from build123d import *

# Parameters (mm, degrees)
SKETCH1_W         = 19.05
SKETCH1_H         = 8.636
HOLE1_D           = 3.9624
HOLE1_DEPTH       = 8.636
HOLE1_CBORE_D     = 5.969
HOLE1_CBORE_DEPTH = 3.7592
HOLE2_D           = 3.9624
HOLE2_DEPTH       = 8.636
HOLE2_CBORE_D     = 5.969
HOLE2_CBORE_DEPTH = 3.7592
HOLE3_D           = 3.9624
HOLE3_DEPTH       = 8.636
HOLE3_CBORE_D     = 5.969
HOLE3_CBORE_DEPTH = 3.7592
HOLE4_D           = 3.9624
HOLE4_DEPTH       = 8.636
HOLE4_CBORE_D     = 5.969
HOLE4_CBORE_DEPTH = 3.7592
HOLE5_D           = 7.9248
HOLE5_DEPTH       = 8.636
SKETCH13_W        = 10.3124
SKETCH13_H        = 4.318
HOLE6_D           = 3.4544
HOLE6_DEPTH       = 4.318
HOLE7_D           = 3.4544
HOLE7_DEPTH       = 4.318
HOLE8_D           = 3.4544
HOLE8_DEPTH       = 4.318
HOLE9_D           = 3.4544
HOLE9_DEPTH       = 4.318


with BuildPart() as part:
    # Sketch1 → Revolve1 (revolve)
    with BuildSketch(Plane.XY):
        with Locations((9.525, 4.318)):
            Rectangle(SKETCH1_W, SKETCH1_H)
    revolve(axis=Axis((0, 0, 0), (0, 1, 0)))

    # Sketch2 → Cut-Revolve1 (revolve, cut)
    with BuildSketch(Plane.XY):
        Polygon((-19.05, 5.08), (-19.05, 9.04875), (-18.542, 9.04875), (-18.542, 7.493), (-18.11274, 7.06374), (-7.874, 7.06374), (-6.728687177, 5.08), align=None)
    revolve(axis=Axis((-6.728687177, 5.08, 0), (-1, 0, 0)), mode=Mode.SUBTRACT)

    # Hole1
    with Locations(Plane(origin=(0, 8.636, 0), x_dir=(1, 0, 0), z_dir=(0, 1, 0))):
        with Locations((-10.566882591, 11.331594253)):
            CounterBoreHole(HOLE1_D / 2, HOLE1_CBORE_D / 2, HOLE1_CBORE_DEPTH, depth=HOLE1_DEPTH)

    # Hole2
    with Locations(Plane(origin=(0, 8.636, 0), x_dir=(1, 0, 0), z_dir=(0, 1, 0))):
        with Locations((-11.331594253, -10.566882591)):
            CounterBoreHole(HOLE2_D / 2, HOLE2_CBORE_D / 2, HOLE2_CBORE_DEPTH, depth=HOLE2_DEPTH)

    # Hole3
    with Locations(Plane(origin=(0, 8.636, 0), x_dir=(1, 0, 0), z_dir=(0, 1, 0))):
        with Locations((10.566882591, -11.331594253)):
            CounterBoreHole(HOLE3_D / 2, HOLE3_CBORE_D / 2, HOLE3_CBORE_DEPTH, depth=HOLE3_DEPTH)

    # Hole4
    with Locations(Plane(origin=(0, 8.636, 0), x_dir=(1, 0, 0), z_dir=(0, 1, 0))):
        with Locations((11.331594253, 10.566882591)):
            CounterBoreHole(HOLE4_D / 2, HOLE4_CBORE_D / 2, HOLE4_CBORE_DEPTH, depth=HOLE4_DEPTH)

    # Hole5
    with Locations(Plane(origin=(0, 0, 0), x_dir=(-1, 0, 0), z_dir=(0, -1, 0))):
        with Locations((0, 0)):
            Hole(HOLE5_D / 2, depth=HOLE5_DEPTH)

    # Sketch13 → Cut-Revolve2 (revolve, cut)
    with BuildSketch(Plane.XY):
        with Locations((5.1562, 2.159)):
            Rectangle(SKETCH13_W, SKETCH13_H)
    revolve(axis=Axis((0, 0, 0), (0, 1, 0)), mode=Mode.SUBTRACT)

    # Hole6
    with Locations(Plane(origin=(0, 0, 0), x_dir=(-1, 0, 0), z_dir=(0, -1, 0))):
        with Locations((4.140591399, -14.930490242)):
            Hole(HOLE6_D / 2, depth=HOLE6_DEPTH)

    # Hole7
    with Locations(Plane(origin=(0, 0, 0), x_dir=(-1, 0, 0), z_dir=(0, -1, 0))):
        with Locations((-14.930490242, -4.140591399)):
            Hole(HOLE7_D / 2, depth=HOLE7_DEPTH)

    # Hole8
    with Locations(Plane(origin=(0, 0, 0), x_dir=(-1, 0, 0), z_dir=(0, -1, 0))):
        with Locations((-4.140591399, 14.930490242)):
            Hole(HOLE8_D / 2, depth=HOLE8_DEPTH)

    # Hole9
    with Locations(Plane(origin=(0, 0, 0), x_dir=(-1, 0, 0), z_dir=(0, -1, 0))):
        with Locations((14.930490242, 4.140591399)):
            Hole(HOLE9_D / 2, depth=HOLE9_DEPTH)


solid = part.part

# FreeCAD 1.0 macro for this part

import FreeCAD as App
import Part
import Sketcher
from FreeCAD import Vector
Q = App.Units.Quantity

doc = App.newDocument("Part")
body = doc.addObject("PartDesign::Body", "Body")

# Sketch on XY plane
sketch1 = body.newObject("Sketcher::SketchObject", "Sketch")
sketch1.AttachmentSupport = (doc.getObject("XY_Plane"), [""])
sketch1.MapMode = "FlatFace"
sketch1.addGeometry([
    Part.LineSegment(Vector(0, 9, 0), Vector(0, 0, 0)),
    Part.LineSegment(Vector(0, 0, 0), Vector(19, 0, 0)),
    Part.LineSegment(Vector(19, 0, 0), Vector(19, 9, 0)),
    Part.LineSegment(Vector(19, 9, 0), Vector(0, 9, 0)),
], False)
sketch1.addConstraint([
    Sketcher.Constraint("Coincident", 0, 2, 1, 1),
    Sketcher.Constraint("Coincident", 1, 2, 2, 1),
    Sketcher.Constraint("Coincident", 2, 2, 3, 1),
    Sketcher.Constraint("Coincident", 3, 2, 0, 1),
    Sketcher.Constraint("Vertical", 0),
    Sketcher.Constraint("Horizontal", 1),
    Sketcher.Constraint("Vertical", 2),
    Sketcher.Constraint("Horizontal", 3),
    Sketcher.Constraint("Coincident", 0, 2, -1, 1),
    Sketcher.Constraint("DistanceX", 1, 1, 1, 2, Q("0.75 in")),
    Sketcher.Constraint("DistanceY", 0, 2, 0, 1, Q("0.34 in")),
])
revolution = body.newObject("PartDesign::Revolution", "Revolution")
revolution.Profile = sketch1
revolution.ReferenceAxis = (sketch1, ["V_Axis"])
revolution.Angle = 360

# Sketch on XY plane
sketch2 = body.newObject("Sketcher::SketchObject", "Sketch001")
sketch2.AttachmentSupport = (doc.getObject("XY_Plane"), [""])
sketch2.MapMode = "FlatFace"
sketch2.addGeometry([
    Part.LineSegment(Vector(-19.1, 9, 0), Vector(-19.1, 5.1, 0)),  # 0
    Part.LineSegment(Vector(-19.1, 5.1, 0), Vector(-6.7, 5.1, 0)),  # 1
    Part.LineSegment(Vector(-6.7, 5.1, 0), Vector(-7.9, 7.1, 0)),  # 2
    Part.LineSegment(Vector(-7.9, 7.1, 0), Vector(-18.1, 7.1, 0)),  # 3
    Part.LineSegment(Vector(-18.1, 7.1, 0), Vector(-18.5, 7.5, 0)),  # 4
    Part.LineSegment(Vector(-18.5, 7.5, 0), Vector(-18.5, 9, 0)),  # 5
    Part.LineSegment(Vector(-18.5, 9, 0), Vector(-19.1, 9, 0)),  # 6
], False)
sketch2.addGeometry(Part.LineSegment(Vector(-6.7, 5.1, 0), Vector(-19.1, 5.1, 0)), True)  # axis
sketch2.addConstraint([
    Sketcher.Constraint("Coincident", 0, 2, 1, 1),
    Sketcher.Constraint("Coincident", 1, 2, 2, 1),
    Sketcher.Constraint("Coincident", 2, 2, 3, 1),
    Sketcher.Constraint("Coincident", 3, 2, 4, 1),
    Sketcher.Constraint("Coincident", 4, 2, 5, 1),
    Sketcher.Constraint("Coincident", 5, 2, 6, 1),
    Sketcher.Constraint("Coincident", 6, 2, 0, 1),
    Sketcher.Constraint("Vertical", 0),
    Sketcher.Constraint("Horizontal", 1),
    Sketcher.Constraint("Horizontal", 3),
    Sketcher.Constraint("Vertical", 5),
    Sketcher.Constraint("Horizontal", 6),
    Sketcher.Constraint("Horizontal", 7),
    Sketcher.Constraint("Coincident", 7, 1, 1, 2),
    Sketcher.Constraint("Vertical", 6, 2, 7, 2),
    Sketcher.Constraint("Angle", 2, Q("120 deg")),
    Sketcher.Constraint("Angle", 4, Q("135 deg")),
    Sketcher.Constraint("DistanceX", 6, 2, 6, 1, Q("0.02 in")),
    Sketcher.Constraint("DistanceY", -1, 1, 0, 2, Q("0.2 in")),
    Sketcher.Constraint("DistanceY", 0, 2, 0, 1, Q("0.15625 in")),
    Sketcher.Constraint("DistanceX", 0, 2, -1, 1, Q("0.75 in")),
    Sketcher.Constraint("DistanceX", 2, 2, -1, 1, Q("0.31 in")),
    Sketcher.Constraint("DistanceX", 3, 2, 3, 1, Q("0.4031 in")),
    Sketcher.Constraint("DistanceY", -1, 1, 4, 2, Q("0.295 in")),
])
groove = body.newObject("PartDesign::Groove", "Groove")
groove.Profile = sketch2
groove.ReferenceAxis = (sketch2, ["Axis0"])
groove.Angle = 360

# Sketch on XZ plane
sketch3 = body.newObject("Sketcher::SketchObject", "Sketch002")
sketch3.AttachmentSupport = (doc.getObject("XZ_Plane"), [""])
sketch3.MapMode = "FlatFace"
sketch3.AttachmentOffset = App.Placement(Vector(0, 0, -0.34 * 25.4), App.Rotation())
sketch3.addGeometry(Part.Circle(Vector(-10.6, -11.3, 0), Vector(0, 0, 1), 2), False)
sketch3.addConstraint([
    Sketcher.Constraint("Diameter", 0, Q("0.156 in")),
    Sketcher.Constraint("DistanceX", 0, 3, -1, 1, Q("10.566883 mm")),
    Sketcher.Constraint("DistanceY", 0, 3, -1, 1, Q("11.331594 mm")),
])
doc.recompute()
hole = body.newObject("PartDesign::Hole", "Hole")
hole.Profile = sketch3
hole.ThreadType = "None"
hole.Diameter = Q("0.156 in")
hole.DepthType = "Dimension"
hole.Depth = Q("0.34 in")
hole.DrillPoint = "Flat"
hole.HoleCutType = "Counterbore"
hole.HoleCutDiameter = Q("0.235 in")
hole.HoleCutDepth = Q("0.148 in")
hole.Reversed = True

# Sketch on XZ plane
sketch4 = body.newObject("Sketcher::SketchObject", "Sketch003")
sketch4.AttachmentSupport = (doc.getObject("XZ_Plane"), [""])
sketch4.MapMode = "FlatFace"
sketch4.AttachmentOffset = App.Placement(Vector(0, 0, -0.34 * 25.4), App.Rotation())
sketch4.addGeometry(Part.Circle(Vector(-11.3, 10.6, 0), Vector(0, 0, 1), 2), False)
sketch4.addConstraint([
    Sketcher.Constraint("Diameter", 0, Q("0.156 in")),
    Sketcher.Constraint("DistanceX", 0, 3, -1, 1, Q("11.331594 mm")),
    Sketcher.Constraint("DistanceY", -1, 1, 0, 3, Q("10.566883 mm")),
])
doc.recompute()
hole2 = body.newObject("PartDesign::Hole", "Hole001")
hole2.Profile = sketch4
hole2.ThreadType = "None"
hole2.Diameter = Q("0.156 in")
hole2.DepthType = "Dimension"
hole2.Depth = Q("0.34 in")
hole2.DrillPoint = "Flat"
hole2.HoleCutType = "Counterbore"
hole2.HoleCutDiameter = Q("0.235 in")
hole2.HoleCutDepth = Q("0.148 in")
hole2.Reversed = True

# Sketch on XZ plane
sketch5 = body.newObject("Sketcher::SketchObject", "Sketch004")
sketch5.AttachmentSupport = (doc.getObject("XZ_Plane"), [""])
sketch5.MapMode = "FlatFace"
sketch5.AttachmentOffset = App.Placement(Vector(0, 0, -0.34 * 25.4), App.Rotation())
sketch5.addGeometry(Part.Circle(Vector(10.6, 11.3, 0), Vector(0, 0, 1), 2), False)
sketch5.addConstraint([
    Sketcher.Constraint("Diameter", 0, Q("0.156 in")),
    Sketcher.Constraint("DistanceX", -1, 1, 0, 3, Q("10.566883 mm")),
    Sketcher.Constraint("DistanceY", -1, 1, 0, 3, Q("11.331594 mm")),
])
doc.recompute()
hole3 = body.newObject("PartDesign::Hole", "Hole002")
hole3.Profile = sketch5
hole3.ThreadType = "None"
hole3.Diameter = Q("0.156 in")
hole3.DepthType = "Dimension"
hole3.Depth = Q("0.34 in")
hole3.DrillPoint = "Flat"
hole3.HoleCutType = "Counterbore"
hole3.HoleCutDiameter = Q("0.235 in")
hole3.HoleCutDepth = Q("0.148 in")
hole3.Reversed = True

# Sketch on XZ plane
sketch6 = body.newObject("Sketcher::SketchObject", "Sketch005")
sketch6.AttachmentSupport = (doc.getObject("XZ_Plane"), [""])
sketch6.MapMode = "FlatFace"
sketch6.AttachmentOffset = App.Placement(Vector(0, 0, -0.34 * 25.4), App.Rotation())
sketch6.addGeometry(Part.Circle(Vector(11.3, -10.6, 0), Vector(0, 0, 1), 2), False)
sketch6.addConstraint([
    Sketcher.Constraint("Diameter", 0, Q("0.156 in")),
    Sketcher.Constraint("DistanceX", -1, 1, 0, 3, Q("11.331594 mm")),
    Sketcher.Constraint("DistanceY", 0, 3, -1, 1, Q("10.566883 mm")),
])
doc.recompute()
hole4 = body.newObject("PartDesign::Hole", "Hole003")
hole4.Profile = sketch6
hole4.ThreadType = "None"
hole4.Diameter = Q("0.156 in")
hole4.DepthType = "Dimension"
hole4.Depth = Q("0.34 in")
hole4.DrillPoint = "Flat"
hole4.HoleCutType = "Counterbore"
hole4.HoleCutDiameter = Q("0.235 in")
hole4.HoleCutDepth = Q("0.148 in")
hole4.Reversed = True

# Sketch on XZ plane
sketch7 = body.newObject("Sketcher::SketchObject", "Sketch006")
sketch7.AttachmentSupport = (doc.getObject("XZ_Plane"), [""])
sketch7.MapMode = "FlatFace"
sketch7.addGeometry(Part.Circle(Vector(0, 0, 0), Vector(0, 0, 1), 4), False)
sketch7.addConstraint([
    Sketcher.Constraint("Coincident", 0, 3, -1, 1),
    Sketcher.Constraint("Diameter", 0, Q("0.312 in")),
])
doc.recompute()
hole5 = body.newObject("PartDesign::Hole", "Hole004")
hole5.Profile = sketch7
hole5.ThreadType = "None"
hole5.Diameter = Q("0.312 in")
hole5.DepthType = "Dimension"
hole5.Depth = Q("0.34 in")
hole5.DrillPoint = "Flat"

# Sketch on XY plane
sketch8 = body.newObject("Sketcher::SketchObject", "Sketch007")
sketch8.AttachmentSupport = (doc.getObject("XY_Plane"), [""])
sketch8.MapMode = "FlatFace"
sketch8.addGeometry([
    Part.LineSegment(Vector(0, 4.3, 0), Vector(0, 0, 0)),
    Part.LineSegment(Vector(0, 0, 0), Vector(10.3, 0, 0)),
    Part.LineSegment(Vector(10.3, 0, 0), Vector(10.3, 4.3, 0)),
    Part.LineSegment(Vector(10.3, 4.3, 0), Vector(0, 4.3, 0)),
], False)
sketch8.addConstraint([
    Sketcher.Constraint("Coincident", 0, 2, 1, 1),
    Sketcher.Constraint("Coincident", 1, 2, 2, 1),
    Sketcher.Constraint("Coincident", 2, 2, 3, 1),
    Sketcher.Constraint("Coincident", 3, 2, 0, 1),
    Sketcher.Constraint("Vertical", 0),
    Sketcher.Constraint("Horizontal", 1),
    Sketcher.Constraint("Vertical", 2),
    Sketcher.Constraint("Horizontal", 3),
    Sketcher.Constraint("Coincident", 0, 2, -1, 1),
    Sketcher.Constraint("DistanceY", 0, 2, 0, 1, Q("0.17 in")),
    Sketcher.Constraint("DistanceX", 1, 1, 1, 2, Q("0.406 in")),
])
groove2 = body.newObject("PartDesign::Groove", "Groove001")
groove2.Profile = sketch8
groove2.ReferenceAxis = (sketch8, ["V_Axis"])
groove2.Angle = 360

# Sketch on XZ plane
sketch9 = body.newObject("Sketcher::SketchObject", "Sketch008")
sketch9.AttachmentSupport = (doc.getObject("XZ_Plane"), [""])
sketch9.MapMode = "FlatFace"
sketch9.addGeometry(Part.Circle(Vector(-4.1, 14.9, 0), Vector(0, 0, 1), 1.7), False)
sketch9.addConstraint([
    Sketcher.Constraint("Diameter", 0, Q("0.136 in")),
    Sketcher.Constraint("DistanceX", 0, 3, -1, 1, Q("4.140591 mm")),
    Sketcher.Constraint("DistanceY", -1, 1, 0, 3, Q("14.93049 mm")),
])
doc.recompute()
hole6 = body.newObject("PartDesign::Hole", "Hole005")
hole6.Profile = sketch9
hole6.ThreadType = "None"
hole6.Diameter = Q("0.136 in")
hole6.DepthType = "Dimension"
hole6.Depth = Q("0.17 in")
hole6.DrillPoint = "Flat"

# Sketch on XZ plane
sketch10 = body.newObject("Sketcher::SketchObject", "Sketch009")
sketch10.AttachmentSupport = (doc.getObject("XZ_Plane"), [""])
sketch10.MapMode = "FlatFace"
sketch10.addGeometry(Part.Circle(Vector(14.9, 4.1, 0), Vector(0, 0, 1), 1.7), False)
sketch10.addConstraint([
    Sketcher.Constraint("Diameter", 0, Q("0.136 in")),
    Sketcher.Constraint("DistanceX", -1, 1, 0, 3, Q("14.93049 mm")),
    Sketcher.Constraint("DistanceY", -1, 1, 0, 3, Q("4.140591 mm")),
])
doc.recompute()
hole7 = body.newObject("PartDesign::Hole", "Hole006")
hole7.Profile = sketch10
hole7.ThreadType = "None"
hole7.Diameter = Q("0.136 in")
hole7.DepthType = "Dimension"
hole7.Depth = Q("0.17 in")
hole7.DrillPoint = "Flat"

# Sketch on XZ plane
sketch11 = body.newObject("Sketcher::SketchObject", "Sketch010")
sketch11.AttachmentSupport = (doc.getObject("XZ_Plane"), [""])
sketch11.MapMode = "FlatFace"
sketch11.addGeometry(Part.Circle(Vector(4.1, -14.9, 0), Vector(0, 0, 1), 1.7), False)
sketch11.addConstraint([
    Sketcher.Constraint("Diameter", 0, Q("0.136 in")),
    Sketcher.Constraint("DistanceX", -1, 1, 0, 3, Q("4.140591 mm")),
    Sketcher.Constraint("DistanceY", 0, 3, -1, 1, Q("14.93049 mm")),
])
doc.recompute()
hole8 = body.newObject("PartDesign::Hole", "Hole007")
hole8.Profile = sketch11
hole8.ThreadType = "None"
hole8.Diameter = Q("0.136 in")
hole8.DepthType = "Dimension"
hole8.Depth = Q("0.17 in")
hole8.DrillPoint = "Flat"

# Sketch on XZ plane
sketch12 = body.newObject("Sketcher::SketchObject", "Sketch011")
sketch12.AttachmentSupport = (doc.getObject("XZ_Plane"), [""])
sketch12.MapMode = "FlatFace"
sketch12.addGeometry(Part.Circle(Vector(-14.9, -4.1, 0), Vector(0, 0, 1), 1.7), False)
sketch12.addConstraint([
    Sketcher.Constraint("Diameter", 0, Q("0.136 in")),
    Sketcher.Constraint("DistanceX", 0, 3, -1, 1, Q("14.93049 mm")),
    Sketcher.Constraint("DistanceY", 0, 3, -1, 1, Q("4.140591 mm")),
])
doc.recompute()
hole9 = body.newObject("PartDesign::Hole", "Hole008")
hole9.Profile = sketch12
hole9.ThreadType = "None"
hole9.Diameter = Q("0.136 in")
hole9.DepthType = "Dimension"
hole9.Depth = Q("0.17 in")
hole9.DrillPoint = "Flat"

doc.recompute()
